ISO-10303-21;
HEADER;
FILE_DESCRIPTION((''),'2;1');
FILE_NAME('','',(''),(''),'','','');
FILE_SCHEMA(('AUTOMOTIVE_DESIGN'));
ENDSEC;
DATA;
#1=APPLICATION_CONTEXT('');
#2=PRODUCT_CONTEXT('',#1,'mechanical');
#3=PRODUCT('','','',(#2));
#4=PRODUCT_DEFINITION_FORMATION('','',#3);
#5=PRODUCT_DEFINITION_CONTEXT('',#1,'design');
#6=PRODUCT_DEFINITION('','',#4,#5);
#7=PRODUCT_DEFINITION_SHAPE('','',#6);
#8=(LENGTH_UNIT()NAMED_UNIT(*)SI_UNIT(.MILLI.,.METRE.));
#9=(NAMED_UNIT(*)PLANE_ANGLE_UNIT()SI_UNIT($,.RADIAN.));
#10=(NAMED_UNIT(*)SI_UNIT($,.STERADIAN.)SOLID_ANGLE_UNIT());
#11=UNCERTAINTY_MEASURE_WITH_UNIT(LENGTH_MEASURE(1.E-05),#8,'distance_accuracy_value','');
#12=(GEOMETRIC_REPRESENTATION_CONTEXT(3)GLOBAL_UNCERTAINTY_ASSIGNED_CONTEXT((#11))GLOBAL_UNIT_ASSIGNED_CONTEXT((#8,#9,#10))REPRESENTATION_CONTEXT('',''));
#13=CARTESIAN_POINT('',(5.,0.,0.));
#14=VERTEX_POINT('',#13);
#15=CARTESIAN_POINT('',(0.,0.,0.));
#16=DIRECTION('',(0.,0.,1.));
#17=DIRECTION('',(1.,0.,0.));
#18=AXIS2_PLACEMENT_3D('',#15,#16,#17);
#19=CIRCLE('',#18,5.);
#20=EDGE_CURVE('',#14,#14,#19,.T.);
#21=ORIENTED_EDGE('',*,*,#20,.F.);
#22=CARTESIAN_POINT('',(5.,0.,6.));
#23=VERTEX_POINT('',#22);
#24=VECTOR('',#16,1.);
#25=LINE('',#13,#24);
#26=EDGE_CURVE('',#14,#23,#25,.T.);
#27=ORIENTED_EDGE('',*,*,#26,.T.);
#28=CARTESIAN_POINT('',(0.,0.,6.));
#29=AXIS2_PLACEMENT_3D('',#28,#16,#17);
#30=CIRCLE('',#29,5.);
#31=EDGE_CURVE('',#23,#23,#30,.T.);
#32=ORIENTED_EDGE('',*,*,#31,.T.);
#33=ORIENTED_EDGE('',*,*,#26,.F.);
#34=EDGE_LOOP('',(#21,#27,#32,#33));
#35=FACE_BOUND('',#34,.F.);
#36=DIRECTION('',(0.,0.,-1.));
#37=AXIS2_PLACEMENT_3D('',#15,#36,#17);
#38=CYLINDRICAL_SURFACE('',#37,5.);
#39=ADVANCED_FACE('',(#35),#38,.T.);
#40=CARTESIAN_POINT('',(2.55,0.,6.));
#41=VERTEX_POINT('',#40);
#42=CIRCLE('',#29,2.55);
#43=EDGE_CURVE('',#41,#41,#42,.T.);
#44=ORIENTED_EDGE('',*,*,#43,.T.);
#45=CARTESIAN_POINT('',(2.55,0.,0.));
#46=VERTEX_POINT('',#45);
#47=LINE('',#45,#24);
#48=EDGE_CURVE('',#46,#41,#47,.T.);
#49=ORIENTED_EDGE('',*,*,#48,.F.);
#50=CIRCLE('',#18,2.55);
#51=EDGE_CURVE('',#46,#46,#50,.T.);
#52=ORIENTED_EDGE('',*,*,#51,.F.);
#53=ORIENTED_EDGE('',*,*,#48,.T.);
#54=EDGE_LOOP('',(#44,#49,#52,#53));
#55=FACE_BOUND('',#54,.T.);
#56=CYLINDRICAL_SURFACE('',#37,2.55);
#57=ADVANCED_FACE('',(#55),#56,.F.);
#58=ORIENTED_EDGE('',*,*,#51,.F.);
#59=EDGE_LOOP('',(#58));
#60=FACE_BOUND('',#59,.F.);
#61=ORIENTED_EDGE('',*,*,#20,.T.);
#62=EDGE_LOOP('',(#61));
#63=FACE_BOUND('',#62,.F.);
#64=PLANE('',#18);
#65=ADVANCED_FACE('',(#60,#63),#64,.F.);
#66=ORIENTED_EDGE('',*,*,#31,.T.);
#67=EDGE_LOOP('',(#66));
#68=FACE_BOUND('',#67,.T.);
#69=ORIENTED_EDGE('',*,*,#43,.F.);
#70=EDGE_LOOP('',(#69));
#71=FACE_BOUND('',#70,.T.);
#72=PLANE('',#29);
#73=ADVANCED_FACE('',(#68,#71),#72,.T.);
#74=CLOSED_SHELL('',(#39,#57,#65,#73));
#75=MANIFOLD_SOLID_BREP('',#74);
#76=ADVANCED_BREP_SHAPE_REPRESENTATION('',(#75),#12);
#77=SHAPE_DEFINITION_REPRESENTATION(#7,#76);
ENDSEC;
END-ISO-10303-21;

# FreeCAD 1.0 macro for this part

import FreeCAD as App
import Part
import Sketcher

V = App.Vector

doc = App.newDocument("Part")
params = doc.addObject("Spreadsheet::Sheet", "Params")
for row, (alias, value) in enumerate([
    ("sketch1_diameter", "10 mm"),
    ("sketch1_diameter2", "5.1 mm"),
    ("pad1_length", "6 mm"),
], start=1):
    params.set(f"A{row}", alias)
    params.set(f"B{row}", "=" + value)
    params.setAlias(f"B{row}", alias)

body = doc.addObject("PartDesign::Body", "Body")

# Sketch on XY plane
sketch1 = body.newObject("Sketcher::SketchObject", "Sketch")
sketch1.AttachmentSupport = (doc.getObject("XY_Plane"), [""])
sketch1.MapMode = "FlatFace"
sketch1.addGeometry([
    Part.Circle(V(0, 0, 0), V(0, 0, 1), 5),
    Part.Circle(V(0, 0, 0), V(0, 0, 1), 2.5),
], False)
sketch1.addConstraint([
    Sketcher.Constraint("Coincident", 0, 3, -1, 1),
    Sketcher.Constraint("Coincident", 1, 3, -1, 1),
    Sketcher.Constraint("Diameter", 0, 10.0),
    Sketcher.Constraint("Diameter", 1, 5.1),
])
sketch1.setExpression("Constraints[2]", "Params.sketch1_diameter")
sketch1.setExpression("Constraints[3]", "Params.sketch1_diameter2")
pad1 = body.newObject("PartDesign::Pad", "Pad")
pad1.Profile = sketch1
pad1.setExpression("Length", "Params.pad1_length")

doc.recompute()
